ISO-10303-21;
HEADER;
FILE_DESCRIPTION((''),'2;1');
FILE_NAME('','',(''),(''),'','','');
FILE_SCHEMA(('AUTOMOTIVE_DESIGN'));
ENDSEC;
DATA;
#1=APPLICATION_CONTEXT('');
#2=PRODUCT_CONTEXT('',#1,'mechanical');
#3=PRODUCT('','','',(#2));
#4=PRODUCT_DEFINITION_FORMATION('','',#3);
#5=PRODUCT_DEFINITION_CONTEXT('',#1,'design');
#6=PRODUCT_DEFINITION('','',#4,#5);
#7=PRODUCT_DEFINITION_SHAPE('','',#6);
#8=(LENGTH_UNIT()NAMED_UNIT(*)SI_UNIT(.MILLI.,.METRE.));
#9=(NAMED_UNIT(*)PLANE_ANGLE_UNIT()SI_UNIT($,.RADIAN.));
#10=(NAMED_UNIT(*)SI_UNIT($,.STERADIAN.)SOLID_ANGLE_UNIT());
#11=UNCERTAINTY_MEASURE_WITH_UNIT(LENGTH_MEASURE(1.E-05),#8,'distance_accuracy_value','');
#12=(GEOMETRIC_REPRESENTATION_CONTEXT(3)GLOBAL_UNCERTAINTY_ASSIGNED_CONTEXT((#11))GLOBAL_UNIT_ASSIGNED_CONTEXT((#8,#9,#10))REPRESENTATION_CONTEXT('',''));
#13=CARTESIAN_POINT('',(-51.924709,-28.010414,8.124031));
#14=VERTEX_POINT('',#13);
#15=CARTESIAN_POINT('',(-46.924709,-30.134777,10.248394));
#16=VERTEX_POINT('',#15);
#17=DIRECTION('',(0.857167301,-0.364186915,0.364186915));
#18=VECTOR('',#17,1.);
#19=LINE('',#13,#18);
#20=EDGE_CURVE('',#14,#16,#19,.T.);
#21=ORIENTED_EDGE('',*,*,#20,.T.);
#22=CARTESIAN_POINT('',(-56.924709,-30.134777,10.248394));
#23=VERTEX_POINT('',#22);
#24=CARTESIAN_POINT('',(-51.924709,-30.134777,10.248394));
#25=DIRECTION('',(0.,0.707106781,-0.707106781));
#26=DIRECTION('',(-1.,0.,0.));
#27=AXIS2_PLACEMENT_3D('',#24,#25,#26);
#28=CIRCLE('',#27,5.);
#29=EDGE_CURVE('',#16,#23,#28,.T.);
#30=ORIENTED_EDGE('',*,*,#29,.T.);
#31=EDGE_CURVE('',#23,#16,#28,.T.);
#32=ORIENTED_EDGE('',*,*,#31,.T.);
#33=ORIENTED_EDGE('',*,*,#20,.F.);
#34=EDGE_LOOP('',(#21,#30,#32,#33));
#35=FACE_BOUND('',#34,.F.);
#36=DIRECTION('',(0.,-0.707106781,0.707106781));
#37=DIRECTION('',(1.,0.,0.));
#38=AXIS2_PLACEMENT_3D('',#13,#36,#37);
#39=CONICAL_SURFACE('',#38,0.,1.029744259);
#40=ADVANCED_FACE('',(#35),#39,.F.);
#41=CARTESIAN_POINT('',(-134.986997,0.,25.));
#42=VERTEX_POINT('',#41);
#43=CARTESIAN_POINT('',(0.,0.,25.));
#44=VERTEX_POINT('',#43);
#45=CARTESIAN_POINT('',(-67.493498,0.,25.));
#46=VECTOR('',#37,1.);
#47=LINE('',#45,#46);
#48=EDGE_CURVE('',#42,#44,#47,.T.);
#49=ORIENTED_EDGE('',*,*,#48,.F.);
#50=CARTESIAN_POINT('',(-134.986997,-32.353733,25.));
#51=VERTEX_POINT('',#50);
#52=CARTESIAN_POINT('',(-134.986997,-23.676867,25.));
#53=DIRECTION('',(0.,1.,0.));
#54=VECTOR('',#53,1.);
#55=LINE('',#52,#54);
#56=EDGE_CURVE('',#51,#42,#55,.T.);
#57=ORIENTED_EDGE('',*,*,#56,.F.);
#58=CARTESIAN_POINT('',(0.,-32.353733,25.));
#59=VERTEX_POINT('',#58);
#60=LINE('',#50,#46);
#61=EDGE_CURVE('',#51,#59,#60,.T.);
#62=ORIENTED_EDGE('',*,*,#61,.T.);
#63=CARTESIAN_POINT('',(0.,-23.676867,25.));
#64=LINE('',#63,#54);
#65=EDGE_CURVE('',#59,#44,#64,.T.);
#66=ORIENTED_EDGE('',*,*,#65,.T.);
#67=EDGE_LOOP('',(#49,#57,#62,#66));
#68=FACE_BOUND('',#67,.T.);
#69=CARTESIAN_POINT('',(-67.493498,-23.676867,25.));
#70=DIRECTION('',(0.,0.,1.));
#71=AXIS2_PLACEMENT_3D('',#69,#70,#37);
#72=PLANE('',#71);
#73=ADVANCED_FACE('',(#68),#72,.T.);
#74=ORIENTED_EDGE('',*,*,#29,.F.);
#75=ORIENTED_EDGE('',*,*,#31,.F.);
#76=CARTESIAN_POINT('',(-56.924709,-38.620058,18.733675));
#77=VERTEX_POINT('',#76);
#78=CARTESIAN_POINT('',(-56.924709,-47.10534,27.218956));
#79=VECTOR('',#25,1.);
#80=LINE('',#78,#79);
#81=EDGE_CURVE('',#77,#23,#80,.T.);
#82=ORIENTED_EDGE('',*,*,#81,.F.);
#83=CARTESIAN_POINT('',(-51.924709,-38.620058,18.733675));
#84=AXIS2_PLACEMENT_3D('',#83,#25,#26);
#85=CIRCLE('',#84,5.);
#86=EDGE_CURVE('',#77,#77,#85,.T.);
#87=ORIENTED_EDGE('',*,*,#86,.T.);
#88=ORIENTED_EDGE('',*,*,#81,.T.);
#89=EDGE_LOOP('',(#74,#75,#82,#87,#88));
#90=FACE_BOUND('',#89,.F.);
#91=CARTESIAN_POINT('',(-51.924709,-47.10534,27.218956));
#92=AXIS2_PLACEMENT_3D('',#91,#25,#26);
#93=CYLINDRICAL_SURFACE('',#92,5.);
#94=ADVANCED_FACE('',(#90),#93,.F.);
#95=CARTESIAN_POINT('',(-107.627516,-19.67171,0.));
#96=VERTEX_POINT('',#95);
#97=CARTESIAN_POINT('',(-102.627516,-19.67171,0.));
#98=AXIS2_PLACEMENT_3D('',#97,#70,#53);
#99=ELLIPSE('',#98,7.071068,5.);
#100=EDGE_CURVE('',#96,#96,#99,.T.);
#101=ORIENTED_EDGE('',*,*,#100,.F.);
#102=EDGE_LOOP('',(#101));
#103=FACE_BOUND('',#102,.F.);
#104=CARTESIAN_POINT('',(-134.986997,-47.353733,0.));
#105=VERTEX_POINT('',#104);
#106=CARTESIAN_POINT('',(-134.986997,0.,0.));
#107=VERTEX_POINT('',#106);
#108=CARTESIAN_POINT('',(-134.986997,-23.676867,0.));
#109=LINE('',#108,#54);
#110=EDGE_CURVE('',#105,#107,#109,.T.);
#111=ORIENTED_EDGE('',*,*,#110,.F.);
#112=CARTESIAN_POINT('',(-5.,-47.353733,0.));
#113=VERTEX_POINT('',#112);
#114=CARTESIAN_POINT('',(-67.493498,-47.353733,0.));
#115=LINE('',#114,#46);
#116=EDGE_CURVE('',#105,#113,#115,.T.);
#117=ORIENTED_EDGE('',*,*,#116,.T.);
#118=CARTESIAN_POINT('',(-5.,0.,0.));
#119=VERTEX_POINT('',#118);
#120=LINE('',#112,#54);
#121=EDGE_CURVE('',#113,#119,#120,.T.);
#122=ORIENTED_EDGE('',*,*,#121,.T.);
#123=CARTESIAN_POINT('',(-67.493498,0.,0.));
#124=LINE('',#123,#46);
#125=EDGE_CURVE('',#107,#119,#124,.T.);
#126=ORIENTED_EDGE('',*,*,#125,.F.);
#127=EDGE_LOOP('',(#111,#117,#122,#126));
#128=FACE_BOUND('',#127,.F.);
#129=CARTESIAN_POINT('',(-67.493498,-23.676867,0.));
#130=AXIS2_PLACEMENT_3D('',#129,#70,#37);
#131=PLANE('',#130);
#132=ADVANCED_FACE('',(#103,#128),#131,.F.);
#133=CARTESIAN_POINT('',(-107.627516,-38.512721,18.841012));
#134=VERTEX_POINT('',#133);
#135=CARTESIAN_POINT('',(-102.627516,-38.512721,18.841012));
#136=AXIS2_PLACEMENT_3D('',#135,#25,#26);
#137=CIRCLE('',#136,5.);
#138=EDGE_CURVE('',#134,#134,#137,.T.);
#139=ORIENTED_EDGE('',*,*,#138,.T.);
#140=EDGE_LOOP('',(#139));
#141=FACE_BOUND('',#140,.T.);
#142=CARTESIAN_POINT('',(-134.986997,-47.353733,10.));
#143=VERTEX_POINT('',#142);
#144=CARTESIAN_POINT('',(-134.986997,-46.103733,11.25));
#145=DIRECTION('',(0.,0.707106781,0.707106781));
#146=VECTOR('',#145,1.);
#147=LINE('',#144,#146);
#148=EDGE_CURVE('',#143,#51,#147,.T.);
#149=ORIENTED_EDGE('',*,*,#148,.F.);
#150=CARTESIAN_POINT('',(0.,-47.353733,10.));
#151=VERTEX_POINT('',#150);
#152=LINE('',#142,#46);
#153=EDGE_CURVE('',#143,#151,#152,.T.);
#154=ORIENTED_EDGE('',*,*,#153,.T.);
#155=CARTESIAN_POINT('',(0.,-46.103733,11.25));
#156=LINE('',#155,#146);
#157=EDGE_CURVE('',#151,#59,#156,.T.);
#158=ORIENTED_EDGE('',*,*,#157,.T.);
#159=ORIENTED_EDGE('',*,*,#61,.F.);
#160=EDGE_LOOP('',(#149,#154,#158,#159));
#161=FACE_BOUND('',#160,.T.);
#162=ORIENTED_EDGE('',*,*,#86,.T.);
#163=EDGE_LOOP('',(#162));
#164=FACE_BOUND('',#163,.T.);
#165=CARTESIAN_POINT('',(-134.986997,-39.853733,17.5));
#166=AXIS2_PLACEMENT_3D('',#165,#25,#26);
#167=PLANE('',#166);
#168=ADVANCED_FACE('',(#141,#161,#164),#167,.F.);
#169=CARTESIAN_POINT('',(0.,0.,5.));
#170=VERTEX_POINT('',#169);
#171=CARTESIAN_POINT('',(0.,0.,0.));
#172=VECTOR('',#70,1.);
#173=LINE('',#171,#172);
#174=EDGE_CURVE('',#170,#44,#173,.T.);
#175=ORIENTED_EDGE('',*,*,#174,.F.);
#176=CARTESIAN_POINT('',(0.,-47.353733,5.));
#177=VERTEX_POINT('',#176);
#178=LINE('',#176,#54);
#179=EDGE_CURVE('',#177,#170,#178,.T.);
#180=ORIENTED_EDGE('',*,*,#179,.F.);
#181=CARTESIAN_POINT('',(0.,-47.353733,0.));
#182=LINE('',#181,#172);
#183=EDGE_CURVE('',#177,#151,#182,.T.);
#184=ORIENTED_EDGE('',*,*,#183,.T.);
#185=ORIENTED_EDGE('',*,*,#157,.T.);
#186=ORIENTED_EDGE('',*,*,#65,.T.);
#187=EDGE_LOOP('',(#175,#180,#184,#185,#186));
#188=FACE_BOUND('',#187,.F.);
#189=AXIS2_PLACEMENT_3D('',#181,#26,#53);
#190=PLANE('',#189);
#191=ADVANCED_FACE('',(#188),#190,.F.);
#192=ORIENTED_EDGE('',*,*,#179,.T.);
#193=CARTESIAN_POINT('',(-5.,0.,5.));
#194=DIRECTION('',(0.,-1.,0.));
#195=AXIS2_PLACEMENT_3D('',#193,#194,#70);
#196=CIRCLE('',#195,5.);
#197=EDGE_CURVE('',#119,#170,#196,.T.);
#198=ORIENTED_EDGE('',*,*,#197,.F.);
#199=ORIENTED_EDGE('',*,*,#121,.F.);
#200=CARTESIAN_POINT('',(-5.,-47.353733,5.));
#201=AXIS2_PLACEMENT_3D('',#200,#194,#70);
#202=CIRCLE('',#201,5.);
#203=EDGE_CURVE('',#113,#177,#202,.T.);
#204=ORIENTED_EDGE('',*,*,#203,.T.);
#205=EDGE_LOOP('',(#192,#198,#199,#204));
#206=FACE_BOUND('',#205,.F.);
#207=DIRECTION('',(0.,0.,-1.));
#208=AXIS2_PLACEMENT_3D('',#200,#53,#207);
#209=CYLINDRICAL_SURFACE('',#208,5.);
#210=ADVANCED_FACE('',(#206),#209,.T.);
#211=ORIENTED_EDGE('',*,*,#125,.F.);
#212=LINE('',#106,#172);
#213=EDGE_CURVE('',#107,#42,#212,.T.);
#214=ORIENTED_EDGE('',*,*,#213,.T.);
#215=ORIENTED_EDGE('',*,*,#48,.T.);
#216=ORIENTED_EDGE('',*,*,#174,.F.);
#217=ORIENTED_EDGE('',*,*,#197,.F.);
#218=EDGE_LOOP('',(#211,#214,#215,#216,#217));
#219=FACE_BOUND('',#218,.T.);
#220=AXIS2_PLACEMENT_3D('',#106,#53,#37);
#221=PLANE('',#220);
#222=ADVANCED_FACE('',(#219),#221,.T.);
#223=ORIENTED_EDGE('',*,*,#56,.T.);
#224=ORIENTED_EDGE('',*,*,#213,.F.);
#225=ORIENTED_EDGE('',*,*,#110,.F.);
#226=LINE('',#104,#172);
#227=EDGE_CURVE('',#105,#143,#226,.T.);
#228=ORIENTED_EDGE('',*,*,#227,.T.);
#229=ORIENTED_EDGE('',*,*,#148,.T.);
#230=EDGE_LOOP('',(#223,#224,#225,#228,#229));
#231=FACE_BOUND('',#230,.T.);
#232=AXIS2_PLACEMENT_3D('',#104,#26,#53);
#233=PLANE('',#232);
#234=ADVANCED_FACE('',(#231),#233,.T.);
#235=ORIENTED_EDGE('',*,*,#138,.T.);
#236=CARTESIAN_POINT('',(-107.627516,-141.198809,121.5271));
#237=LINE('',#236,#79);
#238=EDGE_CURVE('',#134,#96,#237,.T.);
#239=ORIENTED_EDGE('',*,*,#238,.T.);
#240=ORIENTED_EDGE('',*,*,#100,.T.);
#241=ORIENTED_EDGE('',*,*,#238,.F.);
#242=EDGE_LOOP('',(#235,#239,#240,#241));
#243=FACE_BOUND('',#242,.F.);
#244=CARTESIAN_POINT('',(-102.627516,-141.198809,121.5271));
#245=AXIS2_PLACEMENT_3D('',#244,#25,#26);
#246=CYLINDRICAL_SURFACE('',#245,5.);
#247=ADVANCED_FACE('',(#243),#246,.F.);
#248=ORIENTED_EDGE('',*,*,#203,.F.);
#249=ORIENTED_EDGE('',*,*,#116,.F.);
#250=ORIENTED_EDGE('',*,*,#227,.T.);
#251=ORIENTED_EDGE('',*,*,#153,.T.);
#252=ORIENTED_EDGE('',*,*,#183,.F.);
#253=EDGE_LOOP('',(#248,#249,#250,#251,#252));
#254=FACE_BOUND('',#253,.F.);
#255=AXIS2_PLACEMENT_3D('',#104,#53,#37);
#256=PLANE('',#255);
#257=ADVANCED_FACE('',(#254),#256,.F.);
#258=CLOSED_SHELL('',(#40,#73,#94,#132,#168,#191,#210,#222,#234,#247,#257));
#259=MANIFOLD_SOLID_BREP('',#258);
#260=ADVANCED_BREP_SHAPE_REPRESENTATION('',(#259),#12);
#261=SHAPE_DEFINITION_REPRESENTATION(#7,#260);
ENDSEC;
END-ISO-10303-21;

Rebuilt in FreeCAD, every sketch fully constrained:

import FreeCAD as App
import Part
import Sketcher
from FreeCAD import Vector
Q = App.Units.Quantity


def edges_at(feature, points):
    """Names of the edges that pass closest to the given points."""
    edges = feature.Shape.Edges
    near = lambda p: min(range(len(edges)), key=lambda i: edges[i].distToShape(Part.Vertex(*p))[0])
    return sorted({f"Edge{near(p) + 1}" for p in points})

doc = App.newDocument("Part")
body = doc.addObject("PartDesign::Body", "Body")

# Sketch on XY plane
sketch1 = body.newObject("Sketcher::SketchObject", "Sketch")
sketch1.AttachmentSupport = (doc.getObject("XY_Plane"), [""])
sketch1.MapMode = "FlatFace"
sketch1.addGeometry([
    Part.LineSegment(Vector(-135, 0, 0), Vector(-135, -47, 0)),
    Part.LineSegment(Vector(-135, -47, 0), Vector(0, -47, 0)),
    Part.LineSegment(Vector(0, -47, 0), Vector(0, 0, 0)),
    Part.LineSegment(Vector(0, 0, 0), Vector(-135, 0, 0)),
], False)
sketch1.addConstraint([
    Sketcher.Constraint("Coincident", 0, 2, 1, 1),
    Sketcher.Constraint("Coincident", 1, 2, 2, 1),
    Sketcher.Constraint("Coincident", 2, 2, 3, 1),
    Sketcher.Constraint("Coincident", 3, 2, 0, 1),
    Sketcher.Constraint("Vertical", 0),
    Sketcher.Constraint("Horizontal", 1),
    Sketcher.Constraint("Vertical", 2),
    Sketcher.Constraint("Horizontal", 3),
    Sketcher.Constraint("Coincident", 2, 2, -1, 1),
    Sketcher.Constraint("DistanceX", 1, 1, 1, 2, Q("134.986997 mm")),
    Sketcher.Constraint("DistanceY", 0, 2, 0, 1, Q("47.353733 mm")),
])
pad1 = body.newObject("PartDesign::Pad", "Pad")
pad1.Profile = sketch1
pad1.Length = 25
doc.recompute()

chamfer = body.newObject("PartDesign::Chamfer", "Chamfer")
chamfer.Base = (pad1, edges_at(pad1, [(-67.493, -47.354, 25)]))
chamfer.Size = 15

# Sketch on an angled plane
sketch2 = body.newObject("Sketcher::SketchObject", "Sketch001")
sketch2.Placement = App.Placement(Vector(0, -28.676867, 28.676867), App.Rotation(Vector(1, 0, 0), Vector(0, 0.707106781, 0.707106781), Vector(0, -0.707106781, 0.707106781), "ZXY"))
sketch2.addGeometry(Part.Circle(Vector(-103, -14, 0), Vector(0, 0, 1), 5), False)
sketch2.addConstraint([
    Sketcher.Constraint("Diameter", 0, Q("10 mm")),
    Sketcher.Constraint("DistanceY", 0, 3, -1, 1, Q("13.909999 mm")),
    Sketcher.Constraint("DistanceX", 0, 3, -1, 1, Q("102.627516 mm")),
])
doc.recompute()
hole = body.newObject("PartDesign::Hole", "Hole")
hole.Profile = sketch2
hole.ThreadType = "None"
hole.Diameter = 10
hole.DepthType = "ThroughAll"

# Sketch on an angled plane
sketch3 = body.newObject("Sketcher::SketchObject", "Sketch002")
sketch3.Placement = App.Placement(Vector(0, -28.676867, 28.676867), App.Rotation(Vector(1, 0, 0), Vector(0, 0.707106781, 0.707106781), Vector(0, -0.707106781, 0.707106781), "ZXY"))
sketch3.addGeometry(Part.Circle(Vector(-52, -14, 0), Vector(0, 0, 1), 5), False)
sketch3.addConstraint([
    Sketcher.Constraint("Diameter", 0, Q("10 mm")),
    Sketcher.Constraint("DistanceX", 0, 3, -1, 1, Q("51.924709 mm")),
    Sketcher.Constraint("DistanceY", 0, 3, -1, 1, Q("14.061796 mm")),
])
doc.recompute()
hole2 = body.newObject("PartDesign::Hole", "Hole001")
hole2.Profile = sketch3
hole2.ThreadType = "None"
hole2.Diameter = 10
hole2.DepthType = "Dimension"
hole2.Depth = 12
hole2.DrillPoint = "Angled"
hole2.DrillPointAngle = 118
doc.recompute()

fillet = body.newObject("PartDesign::Fillet", "Fillet")
fillet.Base = (hole2, edges_at(hole2, [(0, -23.677, 0)]))
fillet.Radius = 5

doc.recompute()
